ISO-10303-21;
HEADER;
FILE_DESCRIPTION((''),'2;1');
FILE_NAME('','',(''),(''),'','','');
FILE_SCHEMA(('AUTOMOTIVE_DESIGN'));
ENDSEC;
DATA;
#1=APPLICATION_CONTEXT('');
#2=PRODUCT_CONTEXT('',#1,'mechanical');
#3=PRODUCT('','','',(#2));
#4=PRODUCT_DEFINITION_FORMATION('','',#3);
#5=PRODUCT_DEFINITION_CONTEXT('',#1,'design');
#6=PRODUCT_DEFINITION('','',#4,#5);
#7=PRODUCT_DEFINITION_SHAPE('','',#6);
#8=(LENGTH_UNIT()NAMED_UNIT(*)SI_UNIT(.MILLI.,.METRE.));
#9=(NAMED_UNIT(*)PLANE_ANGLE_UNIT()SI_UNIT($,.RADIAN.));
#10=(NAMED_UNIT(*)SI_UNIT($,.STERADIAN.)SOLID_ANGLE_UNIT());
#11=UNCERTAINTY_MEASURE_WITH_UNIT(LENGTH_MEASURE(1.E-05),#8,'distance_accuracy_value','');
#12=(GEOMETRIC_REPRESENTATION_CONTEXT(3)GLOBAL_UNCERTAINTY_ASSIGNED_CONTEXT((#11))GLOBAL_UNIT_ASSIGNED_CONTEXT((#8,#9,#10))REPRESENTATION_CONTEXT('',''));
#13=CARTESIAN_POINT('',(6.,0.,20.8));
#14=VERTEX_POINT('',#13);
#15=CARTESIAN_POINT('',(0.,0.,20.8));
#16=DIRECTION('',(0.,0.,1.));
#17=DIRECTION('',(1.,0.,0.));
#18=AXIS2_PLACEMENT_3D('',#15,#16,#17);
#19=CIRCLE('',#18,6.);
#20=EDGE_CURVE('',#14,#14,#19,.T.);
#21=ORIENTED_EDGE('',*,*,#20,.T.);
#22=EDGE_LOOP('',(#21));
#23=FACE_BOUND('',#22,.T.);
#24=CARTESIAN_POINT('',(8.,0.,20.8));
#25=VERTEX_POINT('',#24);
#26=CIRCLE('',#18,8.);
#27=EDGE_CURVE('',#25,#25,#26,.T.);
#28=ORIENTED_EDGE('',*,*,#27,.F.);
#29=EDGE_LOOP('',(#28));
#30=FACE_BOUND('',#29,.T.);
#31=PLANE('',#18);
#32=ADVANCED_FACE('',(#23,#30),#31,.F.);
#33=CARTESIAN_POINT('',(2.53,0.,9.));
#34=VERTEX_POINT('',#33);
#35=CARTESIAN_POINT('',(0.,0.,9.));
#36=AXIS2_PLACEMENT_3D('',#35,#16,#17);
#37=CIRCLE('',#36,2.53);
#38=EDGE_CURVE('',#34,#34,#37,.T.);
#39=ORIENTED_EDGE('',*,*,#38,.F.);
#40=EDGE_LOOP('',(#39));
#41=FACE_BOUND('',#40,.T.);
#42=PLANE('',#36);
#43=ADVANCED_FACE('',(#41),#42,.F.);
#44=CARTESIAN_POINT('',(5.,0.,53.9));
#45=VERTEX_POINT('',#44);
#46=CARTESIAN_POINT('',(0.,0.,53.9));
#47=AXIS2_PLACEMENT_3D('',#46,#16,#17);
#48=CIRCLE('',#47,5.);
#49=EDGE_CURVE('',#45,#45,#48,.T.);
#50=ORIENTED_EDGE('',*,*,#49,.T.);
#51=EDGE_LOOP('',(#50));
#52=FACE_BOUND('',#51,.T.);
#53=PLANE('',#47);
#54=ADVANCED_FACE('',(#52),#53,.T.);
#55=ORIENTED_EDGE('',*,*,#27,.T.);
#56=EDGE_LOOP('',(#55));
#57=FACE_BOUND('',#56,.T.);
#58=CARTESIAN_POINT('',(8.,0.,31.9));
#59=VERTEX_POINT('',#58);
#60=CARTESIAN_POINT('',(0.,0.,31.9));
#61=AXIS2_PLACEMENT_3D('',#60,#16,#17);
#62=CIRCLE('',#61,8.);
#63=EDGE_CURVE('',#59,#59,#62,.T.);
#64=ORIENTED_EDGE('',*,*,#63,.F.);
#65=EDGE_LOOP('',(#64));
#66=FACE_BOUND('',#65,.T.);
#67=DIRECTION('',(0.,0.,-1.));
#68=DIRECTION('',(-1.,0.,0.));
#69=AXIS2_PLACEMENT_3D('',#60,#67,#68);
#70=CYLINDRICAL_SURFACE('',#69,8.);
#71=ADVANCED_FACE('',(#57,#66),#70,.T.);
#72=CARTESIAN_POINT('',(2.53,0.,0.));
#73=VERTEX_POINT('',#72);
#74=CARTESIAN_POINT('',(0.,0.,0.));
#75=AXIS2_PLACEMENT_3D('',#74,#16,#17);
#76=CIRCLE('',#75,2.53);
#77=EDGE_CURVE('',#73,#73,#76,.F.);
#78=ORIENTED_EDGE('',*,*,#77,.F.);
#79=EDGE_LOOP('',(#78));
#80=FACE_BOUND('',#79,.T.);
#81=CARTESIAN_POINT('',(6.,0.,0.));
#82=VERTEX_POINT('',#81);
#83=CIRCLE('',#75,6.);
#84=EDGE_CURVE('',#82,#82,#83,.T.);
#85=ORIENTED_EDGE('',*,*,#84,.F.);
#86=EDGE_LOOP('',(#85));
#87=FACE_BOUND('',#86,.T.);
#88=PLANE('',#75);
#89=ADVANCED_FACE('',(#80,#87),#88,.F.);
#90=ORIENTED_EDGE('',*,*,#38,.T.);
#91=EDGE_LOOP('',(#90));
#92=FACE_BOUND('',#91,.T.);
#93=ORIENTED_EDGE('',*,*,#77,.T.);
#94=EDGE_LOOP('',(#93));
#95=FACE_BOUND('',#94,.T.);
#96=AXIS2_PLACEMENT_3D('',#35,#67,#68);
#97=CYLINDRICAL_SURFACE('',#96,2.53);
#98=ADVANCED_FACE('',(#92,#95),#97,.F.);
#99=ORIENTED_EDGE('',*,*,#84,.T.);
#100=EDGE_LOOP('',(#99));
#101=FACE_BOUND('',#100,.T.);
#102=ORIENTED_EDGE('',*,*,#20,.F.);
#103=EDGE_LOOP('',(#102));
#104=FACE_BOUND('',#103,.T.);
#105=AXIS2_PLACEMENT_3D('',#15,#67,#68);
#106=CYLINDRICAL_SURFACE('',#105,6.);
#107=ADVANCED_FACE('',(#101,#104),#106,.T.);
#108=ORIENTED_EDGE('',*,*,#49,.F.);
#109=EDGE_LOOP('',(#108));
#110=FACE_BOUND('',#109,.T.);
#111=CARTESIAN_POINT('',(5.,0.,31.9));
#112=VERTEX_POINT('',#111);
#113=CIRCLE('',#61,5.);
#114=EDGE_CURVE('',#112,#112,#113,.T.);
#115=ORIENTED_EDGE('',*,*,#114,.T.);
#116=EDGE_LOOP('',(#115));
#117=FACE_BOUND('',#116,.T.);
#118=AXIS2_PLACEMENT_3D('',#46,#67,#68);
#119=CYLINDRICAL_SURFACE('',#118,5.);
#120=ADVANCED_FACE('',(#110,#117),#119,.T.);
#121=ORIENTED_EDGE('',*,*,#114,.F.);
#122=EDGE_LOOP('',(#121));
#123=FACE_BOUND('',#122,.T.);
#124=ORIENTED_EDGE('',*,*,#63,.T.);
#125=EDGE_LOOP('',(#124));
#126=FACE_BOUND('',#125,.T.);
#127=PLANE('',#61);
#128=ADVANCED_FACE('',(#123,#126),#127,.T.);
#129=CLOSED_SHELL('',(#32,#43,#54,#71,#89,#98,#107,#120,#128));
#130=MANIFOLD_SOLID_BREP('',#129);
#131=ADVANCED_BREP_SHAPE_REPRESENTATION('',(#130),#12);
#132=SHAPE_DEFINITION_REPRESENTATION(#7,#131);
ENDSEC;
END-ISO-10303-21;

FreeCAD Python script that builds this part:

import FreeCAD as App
import Part
import Sketcher
from FreeCAD import Vector
Q = App.Units.Quantity

doc = App.newDocument("Part")
body = doc.addObject("PartDesign::Body", "Body")

# Sketch on XY plane
sketch1 = body.newObject("Sketcher::SketchObject", "Sketch")
sketch1.AttachmentSupport = (doc.getObject("XY_Plane"), [""])
sketch1.MapMode = "FlatFace"
sketch1.addGeometry(Part.Circle(Vector(0, 0, 0), Vector(0, 0, 1), 6), False)
sketch1.addConstraint(Sketcher.Constraint("Coincident", 0, 3, -1, 1))
sketch1.addConstraint(Sketcher.Constraint("Diameter", 0, Q("12 mm")))
pad1 = body.newObject("PartDesign::Pad", "Pad")
pad1.Profile = sketch1
pad1.Length = 20.8

# Sketch on XY plane
sketch2 = body.newObject("Sketcher::SketchObject", "Sketch001")
sketch2.AttachmentSupport = (doc.getObject("XY_Plane"), [""])
sketch2.MapMode = "FlatFace"
sketch2.AttachmentOffset = App.Placement(Vector(0, 0, 20.8), App.Rotation())
sketch2.addGeometry(Part.Circle(Vector(0, 0, 0), Vector(0, 0, 1), 8), False)
sketch2.addConstraint(Sketcher.Constraint("Coincident", 0, 3, -1, 1))
sketch2.addConstraint(Sketcher.Constraint("Diameter", 0, Q("16 mm")))
pad2 = body.newObject("PartDesign::Pad", "Pad001")
pad2.Profile = sketch2
pad2.Length = 11.1

# Sketch on XY plane
sketch3 = body.newObject("Sketcher::SketchObject", "Sketch002")
sketch3.AttachmentSupport = (doc.getObject("XY_Plane"), [""])
sketch3.MapMode = "FlatFace"
sketch3.AttachmentOffset = App.Placement(Vector(0, 0, 31.9), App.Rotation())
sketch3.addGeometry(Part.Circle(Vector(0, 0, 0), Vector(0, 0, 1), 5), False)
sketch3.addConstraint(Sketcher.Constraint("Coincident", 0, 3, -1, 1))
sketch3.addConstraint(Sketcher.Constraint("Diameter", 0, Q("10 mm")))
pad3 = body.newObject("PartDesign::Pad", "Pad002")
pad3.Profile = sketch3
pad3.Length = 22

# Sketch on XY plane
sketch4 = body.newObject("Sketcher::SketchObject", "Sketch003")
sketch4.AttachmentSupport = (doc.getObject("XY_Plane"), [""])
sketch4.MapMode = "FlatFace"
sketch4.AttachmentOffset = App.Placement(Vector(0, 0, -0.1), App.Rotation())
sketch4.addGeometry(Part.Circle(Vector(0, 0, 0), Vector(0, 0, 1), 2.5), False)
sketch4.addConstraint(Sketcher.Constraint("Coincident", 0, 3, -1, 1))
sketch4.addConstraint(Sketcher.Constraint("Diameter", 0, Q("5.06 mm")))
pocket1 = body.newObject("PartDesign::Pocket", "Pocket")
pocket1.Profile = sketch4
pocket1.Length = 9.1
pocket1.Reversed = True

doc.recompute()
